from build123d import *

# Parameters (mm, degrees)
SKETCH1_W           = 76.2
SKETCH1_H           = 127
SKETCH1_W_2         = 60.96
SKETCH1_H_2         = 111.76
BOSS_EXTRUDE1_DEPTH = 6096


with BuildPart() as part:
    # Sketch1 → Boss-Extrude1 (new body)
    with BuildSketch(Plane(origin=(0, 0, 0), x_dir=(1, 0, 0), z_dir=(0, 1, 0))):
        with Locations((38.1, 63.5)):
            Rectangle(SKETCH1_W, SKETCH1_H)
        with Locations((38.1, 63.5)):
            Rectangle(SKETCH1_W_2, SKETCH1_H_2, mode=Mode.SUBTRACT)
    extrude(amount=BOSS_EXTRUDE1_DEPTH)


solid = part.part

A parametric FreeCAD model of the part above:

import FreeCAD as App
import Part
import Sketcher
from FreeCAD import Vector
Q = App.Units.Quantity


def add_polygon(sketch, points):
    """Adds a closed chain of lines whose ends are joined by coincident constraints."""
    first, n = sketch.GeometryCount, len(points)
    for a, b in zip(points, points[1:] + points[:1]):
        sketch.addGeometry(Part.LineSegment(App.Vector(*a, 0), App.Vector(*b, 0)), False)
    for i in range(n):
        sketch.addConstraint(Sketcher.Constraint("Coincident", first + i, 2, first + (i + 1) % n, 1))

doc = App.newDocument("Part")
params = doc.addObject("Spreadsheet::Sheet", "Params")
for row, (alias, value) in enumerate([
    ("sketch1_width", "3 in"),
    ("sketch1_height", "5 in"),
    ("sketch1_width2", "2.4 in"),
    ("sketch1_height2", "4.4 in"),
    ("pad1_length", "240 in"),
], start=1):
    params.set(f"A{row}", alias)
    params.set(f"B{row}", "=" + value)
    params.setAlias(f"B{row}", alias)

body = doc.addObject("PartDesign::Body", "Body")

# Sketch on XZ plane
sketch1 = body.newObject("Sketcher::SketchObject", "Sketch")
sketch1.AttachmentSupport = (doc.getObject("XZ_Plane"), [""])
sketch1.MapMode = "FlatFace"
add_polygon(sketch1, [(0, -127), (0, 0), (76.2, 0), (76.2, -127)])  # lines 0-3
add_polygon(sketch1, [(68.58, -7.62), (7.62, -7.62), (7.62, -119.38), (68.58, -119.38)])  # lines 4-7
sketch1.addConstraint([
    Sketcher.Constraint("Vertical", 0),
    Sketcher.Constraint("Horizontal", 1),
    Sketcher.Constraint("Vertical", 2),
    Sketcher.Constraint("Horizontal", 3),
    Sketcher.Constraint("Horizontal", 4),
    Sketcher.Constraint("Vertical", 5),
    Sketcher.Constraint("Horizontal", 6),
    Sketcher.Constraint("Vertical", 7),
    Sketcher.Constraint("Coincident", 0, 2, -1, 1),
    Sketcher.Constraint("DistanceX", 1, 1, 1, 2, Q("3 in")),
    Sketcher.Constraint("DistanceY", 0, 1, 0, 2, Q("5 in")),
    Sketcher.Constraint("DistanceX", 4, 2, 4, 1, Q("2.4 in")),
    Sketcher.Constraint("DistanceY", 5, 2, 5, 1, Q("4.4 in")),
    Sketcher.Constraint("DistanceX", -1, 1, 4, 2, Q("0.3 in")),
    Sketcher.Constraint("DistanceY", 4, 2, -1, 1, Q("0.3 in")),
])
sketch1.setExpression("Constraints[17]", "Params.sketch1_width")
sketch1.setExpression("Constraints[18]", "Params.sketch1_height")
sketch1.setExpression("Constraints[19]", "Params.sketch1_width2")
sketch1.setExpression("Constraints[20]", "Params.sketch1_height2")
pad1 = body.newObject("PartDesign::Pad", "Pad")
pad1.Profile = sketch1
pad1.setExpression("Length", "Params.pad1_length")
pad1.Reversed = True

doc.recompute()
